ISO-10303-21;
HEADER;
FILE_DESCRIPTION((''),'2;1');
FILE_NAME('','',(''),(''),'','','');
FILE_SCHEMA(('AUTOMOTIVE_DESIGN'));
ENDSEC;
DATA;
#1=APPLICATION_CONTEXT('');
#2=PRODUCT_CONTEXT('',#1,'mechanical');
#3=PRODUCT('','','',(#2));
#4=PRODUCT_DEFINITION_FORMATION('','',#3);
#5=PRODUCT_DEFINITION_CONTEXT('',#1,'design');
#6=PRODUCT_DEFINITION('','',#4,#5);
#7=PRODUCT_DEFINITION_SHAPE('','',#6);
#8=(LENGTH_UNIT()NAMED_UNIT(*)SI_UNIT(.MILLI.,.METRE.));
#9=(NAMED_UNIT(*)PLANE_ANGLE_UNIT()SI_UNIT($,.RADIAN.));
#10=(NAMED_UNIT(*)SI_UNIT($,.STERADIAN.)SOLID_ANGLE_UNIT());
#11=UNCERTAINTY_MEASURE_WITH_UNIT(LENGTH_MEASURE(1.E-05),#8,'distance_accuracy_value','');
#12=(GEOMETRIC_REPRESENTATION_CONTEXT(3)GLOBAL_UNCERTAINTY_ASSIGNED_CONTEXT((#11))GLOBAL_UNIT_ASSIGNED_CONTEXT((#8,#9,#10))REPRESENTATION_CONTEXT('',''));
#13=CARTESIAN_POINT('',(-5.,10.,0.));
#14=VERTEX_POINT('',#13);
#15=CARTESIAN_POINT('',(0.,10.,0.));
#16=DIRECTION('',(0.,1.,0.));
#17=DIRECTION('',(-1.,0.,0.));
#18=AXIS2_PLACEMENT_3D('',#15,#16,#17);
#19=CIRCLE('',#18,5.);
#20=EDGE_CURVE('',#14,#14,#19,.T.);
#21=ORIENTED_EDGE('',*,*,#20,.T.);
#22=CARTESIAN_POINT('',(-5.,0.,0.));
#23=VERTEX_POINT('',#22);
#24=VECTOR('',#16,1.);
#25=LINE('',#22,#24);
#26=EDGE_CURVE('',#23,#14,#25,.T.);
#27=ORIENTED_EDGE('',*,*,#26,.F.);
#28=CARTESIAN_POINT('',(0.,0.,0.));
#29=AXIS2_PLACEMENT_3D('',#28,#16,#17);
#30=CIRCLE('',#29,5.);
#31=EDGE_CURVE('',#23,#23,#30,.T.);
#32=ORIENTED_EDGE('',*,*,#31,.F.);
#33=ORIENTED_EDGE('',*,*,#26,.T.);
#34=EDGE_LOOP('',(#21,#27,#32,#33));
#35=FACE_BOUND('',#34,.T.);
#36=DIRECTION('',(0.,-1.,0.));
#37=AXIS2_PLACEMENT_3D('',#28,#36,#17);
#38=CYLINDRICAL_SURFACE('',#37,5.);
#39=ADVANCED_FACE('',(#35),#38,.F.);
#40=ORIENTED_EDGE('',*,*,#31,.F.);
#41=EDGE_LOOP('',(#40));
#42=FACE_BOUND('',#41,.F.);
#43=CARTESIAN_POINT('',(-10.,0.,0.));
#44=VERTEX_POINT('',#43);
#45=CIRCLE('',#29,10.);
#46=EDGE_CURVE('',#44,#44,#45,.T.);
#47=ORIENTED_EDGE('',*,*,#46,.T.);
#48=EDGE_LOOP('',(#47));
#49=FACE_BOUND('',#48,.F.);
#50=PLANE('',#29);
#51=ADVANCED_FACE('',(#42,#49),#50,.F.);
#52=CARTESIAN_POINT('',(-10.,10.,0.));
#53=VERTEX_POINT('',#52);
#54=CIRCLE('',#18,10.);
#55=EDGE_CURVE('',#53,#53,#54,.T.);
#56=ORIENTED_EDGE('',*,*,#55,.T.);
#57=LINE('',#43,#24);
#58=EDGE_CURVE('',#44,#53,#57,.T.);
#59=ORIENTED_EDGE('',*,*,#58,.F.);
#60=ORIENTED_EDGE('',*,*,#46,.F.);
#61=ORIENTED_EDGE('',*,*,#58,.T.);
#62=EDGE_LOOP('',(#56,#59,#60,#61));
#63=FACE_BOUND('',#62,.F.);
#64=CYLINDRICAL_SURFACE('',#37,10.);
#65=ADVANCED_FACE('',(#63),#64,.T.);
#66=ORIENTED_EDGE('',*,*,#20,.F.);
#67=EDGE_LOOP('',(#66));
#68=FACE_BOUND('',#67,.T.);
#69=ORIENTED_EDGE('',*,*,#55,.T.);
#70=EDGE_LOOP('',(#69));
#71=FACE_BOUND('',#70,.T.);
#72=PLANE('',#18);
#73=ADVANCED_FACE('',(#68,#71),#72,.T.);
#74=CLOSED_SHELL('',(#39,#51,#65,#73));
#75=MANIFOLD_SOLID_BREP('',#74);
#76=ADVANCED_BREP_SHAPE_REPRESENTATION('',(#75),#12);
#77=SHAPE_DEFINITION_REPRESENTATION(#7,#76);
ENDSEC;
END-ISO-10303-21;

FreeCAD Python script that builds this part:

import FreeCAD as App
import Part
import Sketcher

V = App.Vector

doc = App.newDocument("Part")
body = doc.addObject("PartDesign::Body", "Body")

sketch1 = body.newObject("Sketcher::SketchObject", "Sketch")
sketch1.AttachmentSupport = (doc.getObject("XZ_Plane"), [""])
sketch1.MapMode = "FlatFace"
sketch1.addGeometry(Part.Circle(V(0, 0, 0), V(0, 0, 1), 10), False)
sketch1.addGeometry(Part.Circle(V(0, 0, 0), V(0, 0, 1), 5), False)
sketch1.addConstraint(Sketcher.Constraint("Coincident", 0, 3, -1, 1))
sketch1.addConstraint(Sketcher.Constraint("Coincident", 1, 3, -1, 1))
sketch1.addConstraint(Sketcher.Constraint("Diameter", 0, 20.0))
sketch1.addConstraint(Sketcher.Constraint("Diameter", 1, 10.0))
pad1 = body.newObject("PartDesign::Pad", "Pad")
pad1.Profile = sketch1
pad1.Length = 10
pad1.Reversed = True

doc.recompute()
